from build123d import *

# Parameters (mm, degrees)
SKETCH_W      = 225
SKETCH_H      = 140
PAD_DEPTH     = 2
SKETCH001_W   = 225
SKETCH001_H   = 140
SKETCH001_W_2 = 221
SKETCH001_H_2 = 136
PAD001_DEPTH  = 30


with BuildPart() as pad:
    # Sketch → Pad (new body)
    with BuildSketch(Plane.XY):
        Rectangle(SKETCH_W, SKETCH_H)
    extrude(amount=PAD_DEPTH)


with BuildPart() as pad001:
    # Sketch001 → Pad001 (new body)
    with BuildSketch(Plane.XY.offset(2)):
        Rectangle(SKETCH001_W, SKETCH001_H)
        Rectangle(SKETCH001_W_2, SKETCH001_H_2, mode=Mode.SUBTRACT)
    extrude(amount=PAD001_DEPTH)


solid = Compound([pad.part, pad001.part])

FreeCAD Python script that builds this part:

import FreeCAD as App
import Part
import Sketcher

V = App.Vector


def add_polygon(sketch, points):
    """Adds a closed chain of lines whose ends are joined by coincident constraints."""
    first, n = sketch.GeometryCount, len(points)
    for a, b in zip(points, points[1:] + points[:1]):
        sketch.addGeometry(Part.LineSegment(App.Vector(*a, 0), App.Vector(*b, 0)), False)
    for i in range(n):
        sketch.addConstraint(Sketcher.Constraint("Coincident", first + i, 2, first + (i + 1) % n, 1))

doc = App.newDocument("Part")
body = doc.addObject("PartDesign::Body", "Body")

# Sketch on XY plane
sketch1 = doc.addObject("Sketcher::SketchObject", "Sketch")
body.addObject(sketch1)
sketch1.AttachmentSupport = (doc.XY_Plane, [""])
sketch1.MapMode = "FlatFace"
add_polygon(sketch1, [(-112.5, 70), (-112.5, -70), (112.5, -70), (112.5, 70)])  # lines 0-3
sketch1.addConstraint(Sketcher.Constraint("Vertical", 0))
sketch1.addConstraint(Sketcher.Constraint("Horizontal", 1))
sketch1.addConstraint(Sketcher.Constraint("Vertical", 2))
sketch1.addConstraint(Sketcher.Constraint("Horizontal", 3))
sketch1.addConstraint(Sketcher.Constraint("Symmetric", 0, 2, 2, 2, -1, 1))
sketch1.addConstraint(Sketcher.Constraint("DistanceX", 1, 1, 1, 2, 225.0))
sketch1.addConstraint(Sketcher.Constraint("DistanceY", 0, 2, 0, 1, 140.0))
pad1 = doc.addObject("PartDesign::Pad", "Pad")
body.addObject(pad1)
pad1.Profile = sketch1
pad1.Length = 2
body2 = doc.addObject("PartDesign::Body", "Body001")

# Sketch on XY plane
sketch2 = doc.addObject("Sketcher::SketchObject", "Sketch001")
body2.addObject(sketch2)
sketch2.AttachmentSupport = (doc.getObject("XY_Plane001"), [""])
sketch2.MapMode = "FlatFace"
sketch2.AttachmentOffset = App.Placement(V(0, 0, 2), App.Rotation())
add_polygon(sketch2, [(-112.5, 70), (-112.5, -70), (112.5, -70), (112.5, 70)])  # lines 0-3
add_polygon(sketch2, [(110.5, -68), (-110.5, -68), (-110.5, 68), (110.5, 68)])  # lines 4-7
sketch2.addConstraint(Sketcher.Constraint("Vertical", 0))
sketch2.addConstraint(Sketcher.Constraint("Horizontal", 1))
sketch2.addConstraint(Sketcher.Constraint("Vertical", 2))
sketch2.addConstraint(Sketcher.Constraint("Horizontal", 3))
sketch2.addConstraint(Sketcher.Constraint("Horizontal", 4))
sketch2.addConstraint(Sketcher.Constraint("Vertical", 5))
sketch2.addConstraint(Sketcher.Constraint("Horizontal", 6))
sketch2.addConstraint(Sketcher.Constraint("Vertical", 7))
sketch2.addConstraint(Sketcher.Constraint("Symmetric", 0, 2, 2, 2, -1, 1))
sketch2.addConstraint(Sketcher.Constraint("Symmetric", 4, 2, 6, 2, -1, 1))
sketch2.addConstraint(Sketcher.Constraint("DistanceX", 1, 1, 1, 2, 225.0))
sketch2.addConstraint(Sketcher.Constraint("DistanceX", 4, 2, 4, 1, 221.0))
sketch2.addConstraint(Sketcher.Constraint("DistanceY", 0, 2, 0, 1, 140.0))
sketch2.addConstraint(Sketcher.Constraint("DistanceY", 5, 1, 5, 2, 136.0))
pad2 = doc.addObject("PartDesign::Pad", "Pad001")
body2.addObject(pad2)
pad2.Profile = sketch2
pad2.Length = 30

doc.recompute()
